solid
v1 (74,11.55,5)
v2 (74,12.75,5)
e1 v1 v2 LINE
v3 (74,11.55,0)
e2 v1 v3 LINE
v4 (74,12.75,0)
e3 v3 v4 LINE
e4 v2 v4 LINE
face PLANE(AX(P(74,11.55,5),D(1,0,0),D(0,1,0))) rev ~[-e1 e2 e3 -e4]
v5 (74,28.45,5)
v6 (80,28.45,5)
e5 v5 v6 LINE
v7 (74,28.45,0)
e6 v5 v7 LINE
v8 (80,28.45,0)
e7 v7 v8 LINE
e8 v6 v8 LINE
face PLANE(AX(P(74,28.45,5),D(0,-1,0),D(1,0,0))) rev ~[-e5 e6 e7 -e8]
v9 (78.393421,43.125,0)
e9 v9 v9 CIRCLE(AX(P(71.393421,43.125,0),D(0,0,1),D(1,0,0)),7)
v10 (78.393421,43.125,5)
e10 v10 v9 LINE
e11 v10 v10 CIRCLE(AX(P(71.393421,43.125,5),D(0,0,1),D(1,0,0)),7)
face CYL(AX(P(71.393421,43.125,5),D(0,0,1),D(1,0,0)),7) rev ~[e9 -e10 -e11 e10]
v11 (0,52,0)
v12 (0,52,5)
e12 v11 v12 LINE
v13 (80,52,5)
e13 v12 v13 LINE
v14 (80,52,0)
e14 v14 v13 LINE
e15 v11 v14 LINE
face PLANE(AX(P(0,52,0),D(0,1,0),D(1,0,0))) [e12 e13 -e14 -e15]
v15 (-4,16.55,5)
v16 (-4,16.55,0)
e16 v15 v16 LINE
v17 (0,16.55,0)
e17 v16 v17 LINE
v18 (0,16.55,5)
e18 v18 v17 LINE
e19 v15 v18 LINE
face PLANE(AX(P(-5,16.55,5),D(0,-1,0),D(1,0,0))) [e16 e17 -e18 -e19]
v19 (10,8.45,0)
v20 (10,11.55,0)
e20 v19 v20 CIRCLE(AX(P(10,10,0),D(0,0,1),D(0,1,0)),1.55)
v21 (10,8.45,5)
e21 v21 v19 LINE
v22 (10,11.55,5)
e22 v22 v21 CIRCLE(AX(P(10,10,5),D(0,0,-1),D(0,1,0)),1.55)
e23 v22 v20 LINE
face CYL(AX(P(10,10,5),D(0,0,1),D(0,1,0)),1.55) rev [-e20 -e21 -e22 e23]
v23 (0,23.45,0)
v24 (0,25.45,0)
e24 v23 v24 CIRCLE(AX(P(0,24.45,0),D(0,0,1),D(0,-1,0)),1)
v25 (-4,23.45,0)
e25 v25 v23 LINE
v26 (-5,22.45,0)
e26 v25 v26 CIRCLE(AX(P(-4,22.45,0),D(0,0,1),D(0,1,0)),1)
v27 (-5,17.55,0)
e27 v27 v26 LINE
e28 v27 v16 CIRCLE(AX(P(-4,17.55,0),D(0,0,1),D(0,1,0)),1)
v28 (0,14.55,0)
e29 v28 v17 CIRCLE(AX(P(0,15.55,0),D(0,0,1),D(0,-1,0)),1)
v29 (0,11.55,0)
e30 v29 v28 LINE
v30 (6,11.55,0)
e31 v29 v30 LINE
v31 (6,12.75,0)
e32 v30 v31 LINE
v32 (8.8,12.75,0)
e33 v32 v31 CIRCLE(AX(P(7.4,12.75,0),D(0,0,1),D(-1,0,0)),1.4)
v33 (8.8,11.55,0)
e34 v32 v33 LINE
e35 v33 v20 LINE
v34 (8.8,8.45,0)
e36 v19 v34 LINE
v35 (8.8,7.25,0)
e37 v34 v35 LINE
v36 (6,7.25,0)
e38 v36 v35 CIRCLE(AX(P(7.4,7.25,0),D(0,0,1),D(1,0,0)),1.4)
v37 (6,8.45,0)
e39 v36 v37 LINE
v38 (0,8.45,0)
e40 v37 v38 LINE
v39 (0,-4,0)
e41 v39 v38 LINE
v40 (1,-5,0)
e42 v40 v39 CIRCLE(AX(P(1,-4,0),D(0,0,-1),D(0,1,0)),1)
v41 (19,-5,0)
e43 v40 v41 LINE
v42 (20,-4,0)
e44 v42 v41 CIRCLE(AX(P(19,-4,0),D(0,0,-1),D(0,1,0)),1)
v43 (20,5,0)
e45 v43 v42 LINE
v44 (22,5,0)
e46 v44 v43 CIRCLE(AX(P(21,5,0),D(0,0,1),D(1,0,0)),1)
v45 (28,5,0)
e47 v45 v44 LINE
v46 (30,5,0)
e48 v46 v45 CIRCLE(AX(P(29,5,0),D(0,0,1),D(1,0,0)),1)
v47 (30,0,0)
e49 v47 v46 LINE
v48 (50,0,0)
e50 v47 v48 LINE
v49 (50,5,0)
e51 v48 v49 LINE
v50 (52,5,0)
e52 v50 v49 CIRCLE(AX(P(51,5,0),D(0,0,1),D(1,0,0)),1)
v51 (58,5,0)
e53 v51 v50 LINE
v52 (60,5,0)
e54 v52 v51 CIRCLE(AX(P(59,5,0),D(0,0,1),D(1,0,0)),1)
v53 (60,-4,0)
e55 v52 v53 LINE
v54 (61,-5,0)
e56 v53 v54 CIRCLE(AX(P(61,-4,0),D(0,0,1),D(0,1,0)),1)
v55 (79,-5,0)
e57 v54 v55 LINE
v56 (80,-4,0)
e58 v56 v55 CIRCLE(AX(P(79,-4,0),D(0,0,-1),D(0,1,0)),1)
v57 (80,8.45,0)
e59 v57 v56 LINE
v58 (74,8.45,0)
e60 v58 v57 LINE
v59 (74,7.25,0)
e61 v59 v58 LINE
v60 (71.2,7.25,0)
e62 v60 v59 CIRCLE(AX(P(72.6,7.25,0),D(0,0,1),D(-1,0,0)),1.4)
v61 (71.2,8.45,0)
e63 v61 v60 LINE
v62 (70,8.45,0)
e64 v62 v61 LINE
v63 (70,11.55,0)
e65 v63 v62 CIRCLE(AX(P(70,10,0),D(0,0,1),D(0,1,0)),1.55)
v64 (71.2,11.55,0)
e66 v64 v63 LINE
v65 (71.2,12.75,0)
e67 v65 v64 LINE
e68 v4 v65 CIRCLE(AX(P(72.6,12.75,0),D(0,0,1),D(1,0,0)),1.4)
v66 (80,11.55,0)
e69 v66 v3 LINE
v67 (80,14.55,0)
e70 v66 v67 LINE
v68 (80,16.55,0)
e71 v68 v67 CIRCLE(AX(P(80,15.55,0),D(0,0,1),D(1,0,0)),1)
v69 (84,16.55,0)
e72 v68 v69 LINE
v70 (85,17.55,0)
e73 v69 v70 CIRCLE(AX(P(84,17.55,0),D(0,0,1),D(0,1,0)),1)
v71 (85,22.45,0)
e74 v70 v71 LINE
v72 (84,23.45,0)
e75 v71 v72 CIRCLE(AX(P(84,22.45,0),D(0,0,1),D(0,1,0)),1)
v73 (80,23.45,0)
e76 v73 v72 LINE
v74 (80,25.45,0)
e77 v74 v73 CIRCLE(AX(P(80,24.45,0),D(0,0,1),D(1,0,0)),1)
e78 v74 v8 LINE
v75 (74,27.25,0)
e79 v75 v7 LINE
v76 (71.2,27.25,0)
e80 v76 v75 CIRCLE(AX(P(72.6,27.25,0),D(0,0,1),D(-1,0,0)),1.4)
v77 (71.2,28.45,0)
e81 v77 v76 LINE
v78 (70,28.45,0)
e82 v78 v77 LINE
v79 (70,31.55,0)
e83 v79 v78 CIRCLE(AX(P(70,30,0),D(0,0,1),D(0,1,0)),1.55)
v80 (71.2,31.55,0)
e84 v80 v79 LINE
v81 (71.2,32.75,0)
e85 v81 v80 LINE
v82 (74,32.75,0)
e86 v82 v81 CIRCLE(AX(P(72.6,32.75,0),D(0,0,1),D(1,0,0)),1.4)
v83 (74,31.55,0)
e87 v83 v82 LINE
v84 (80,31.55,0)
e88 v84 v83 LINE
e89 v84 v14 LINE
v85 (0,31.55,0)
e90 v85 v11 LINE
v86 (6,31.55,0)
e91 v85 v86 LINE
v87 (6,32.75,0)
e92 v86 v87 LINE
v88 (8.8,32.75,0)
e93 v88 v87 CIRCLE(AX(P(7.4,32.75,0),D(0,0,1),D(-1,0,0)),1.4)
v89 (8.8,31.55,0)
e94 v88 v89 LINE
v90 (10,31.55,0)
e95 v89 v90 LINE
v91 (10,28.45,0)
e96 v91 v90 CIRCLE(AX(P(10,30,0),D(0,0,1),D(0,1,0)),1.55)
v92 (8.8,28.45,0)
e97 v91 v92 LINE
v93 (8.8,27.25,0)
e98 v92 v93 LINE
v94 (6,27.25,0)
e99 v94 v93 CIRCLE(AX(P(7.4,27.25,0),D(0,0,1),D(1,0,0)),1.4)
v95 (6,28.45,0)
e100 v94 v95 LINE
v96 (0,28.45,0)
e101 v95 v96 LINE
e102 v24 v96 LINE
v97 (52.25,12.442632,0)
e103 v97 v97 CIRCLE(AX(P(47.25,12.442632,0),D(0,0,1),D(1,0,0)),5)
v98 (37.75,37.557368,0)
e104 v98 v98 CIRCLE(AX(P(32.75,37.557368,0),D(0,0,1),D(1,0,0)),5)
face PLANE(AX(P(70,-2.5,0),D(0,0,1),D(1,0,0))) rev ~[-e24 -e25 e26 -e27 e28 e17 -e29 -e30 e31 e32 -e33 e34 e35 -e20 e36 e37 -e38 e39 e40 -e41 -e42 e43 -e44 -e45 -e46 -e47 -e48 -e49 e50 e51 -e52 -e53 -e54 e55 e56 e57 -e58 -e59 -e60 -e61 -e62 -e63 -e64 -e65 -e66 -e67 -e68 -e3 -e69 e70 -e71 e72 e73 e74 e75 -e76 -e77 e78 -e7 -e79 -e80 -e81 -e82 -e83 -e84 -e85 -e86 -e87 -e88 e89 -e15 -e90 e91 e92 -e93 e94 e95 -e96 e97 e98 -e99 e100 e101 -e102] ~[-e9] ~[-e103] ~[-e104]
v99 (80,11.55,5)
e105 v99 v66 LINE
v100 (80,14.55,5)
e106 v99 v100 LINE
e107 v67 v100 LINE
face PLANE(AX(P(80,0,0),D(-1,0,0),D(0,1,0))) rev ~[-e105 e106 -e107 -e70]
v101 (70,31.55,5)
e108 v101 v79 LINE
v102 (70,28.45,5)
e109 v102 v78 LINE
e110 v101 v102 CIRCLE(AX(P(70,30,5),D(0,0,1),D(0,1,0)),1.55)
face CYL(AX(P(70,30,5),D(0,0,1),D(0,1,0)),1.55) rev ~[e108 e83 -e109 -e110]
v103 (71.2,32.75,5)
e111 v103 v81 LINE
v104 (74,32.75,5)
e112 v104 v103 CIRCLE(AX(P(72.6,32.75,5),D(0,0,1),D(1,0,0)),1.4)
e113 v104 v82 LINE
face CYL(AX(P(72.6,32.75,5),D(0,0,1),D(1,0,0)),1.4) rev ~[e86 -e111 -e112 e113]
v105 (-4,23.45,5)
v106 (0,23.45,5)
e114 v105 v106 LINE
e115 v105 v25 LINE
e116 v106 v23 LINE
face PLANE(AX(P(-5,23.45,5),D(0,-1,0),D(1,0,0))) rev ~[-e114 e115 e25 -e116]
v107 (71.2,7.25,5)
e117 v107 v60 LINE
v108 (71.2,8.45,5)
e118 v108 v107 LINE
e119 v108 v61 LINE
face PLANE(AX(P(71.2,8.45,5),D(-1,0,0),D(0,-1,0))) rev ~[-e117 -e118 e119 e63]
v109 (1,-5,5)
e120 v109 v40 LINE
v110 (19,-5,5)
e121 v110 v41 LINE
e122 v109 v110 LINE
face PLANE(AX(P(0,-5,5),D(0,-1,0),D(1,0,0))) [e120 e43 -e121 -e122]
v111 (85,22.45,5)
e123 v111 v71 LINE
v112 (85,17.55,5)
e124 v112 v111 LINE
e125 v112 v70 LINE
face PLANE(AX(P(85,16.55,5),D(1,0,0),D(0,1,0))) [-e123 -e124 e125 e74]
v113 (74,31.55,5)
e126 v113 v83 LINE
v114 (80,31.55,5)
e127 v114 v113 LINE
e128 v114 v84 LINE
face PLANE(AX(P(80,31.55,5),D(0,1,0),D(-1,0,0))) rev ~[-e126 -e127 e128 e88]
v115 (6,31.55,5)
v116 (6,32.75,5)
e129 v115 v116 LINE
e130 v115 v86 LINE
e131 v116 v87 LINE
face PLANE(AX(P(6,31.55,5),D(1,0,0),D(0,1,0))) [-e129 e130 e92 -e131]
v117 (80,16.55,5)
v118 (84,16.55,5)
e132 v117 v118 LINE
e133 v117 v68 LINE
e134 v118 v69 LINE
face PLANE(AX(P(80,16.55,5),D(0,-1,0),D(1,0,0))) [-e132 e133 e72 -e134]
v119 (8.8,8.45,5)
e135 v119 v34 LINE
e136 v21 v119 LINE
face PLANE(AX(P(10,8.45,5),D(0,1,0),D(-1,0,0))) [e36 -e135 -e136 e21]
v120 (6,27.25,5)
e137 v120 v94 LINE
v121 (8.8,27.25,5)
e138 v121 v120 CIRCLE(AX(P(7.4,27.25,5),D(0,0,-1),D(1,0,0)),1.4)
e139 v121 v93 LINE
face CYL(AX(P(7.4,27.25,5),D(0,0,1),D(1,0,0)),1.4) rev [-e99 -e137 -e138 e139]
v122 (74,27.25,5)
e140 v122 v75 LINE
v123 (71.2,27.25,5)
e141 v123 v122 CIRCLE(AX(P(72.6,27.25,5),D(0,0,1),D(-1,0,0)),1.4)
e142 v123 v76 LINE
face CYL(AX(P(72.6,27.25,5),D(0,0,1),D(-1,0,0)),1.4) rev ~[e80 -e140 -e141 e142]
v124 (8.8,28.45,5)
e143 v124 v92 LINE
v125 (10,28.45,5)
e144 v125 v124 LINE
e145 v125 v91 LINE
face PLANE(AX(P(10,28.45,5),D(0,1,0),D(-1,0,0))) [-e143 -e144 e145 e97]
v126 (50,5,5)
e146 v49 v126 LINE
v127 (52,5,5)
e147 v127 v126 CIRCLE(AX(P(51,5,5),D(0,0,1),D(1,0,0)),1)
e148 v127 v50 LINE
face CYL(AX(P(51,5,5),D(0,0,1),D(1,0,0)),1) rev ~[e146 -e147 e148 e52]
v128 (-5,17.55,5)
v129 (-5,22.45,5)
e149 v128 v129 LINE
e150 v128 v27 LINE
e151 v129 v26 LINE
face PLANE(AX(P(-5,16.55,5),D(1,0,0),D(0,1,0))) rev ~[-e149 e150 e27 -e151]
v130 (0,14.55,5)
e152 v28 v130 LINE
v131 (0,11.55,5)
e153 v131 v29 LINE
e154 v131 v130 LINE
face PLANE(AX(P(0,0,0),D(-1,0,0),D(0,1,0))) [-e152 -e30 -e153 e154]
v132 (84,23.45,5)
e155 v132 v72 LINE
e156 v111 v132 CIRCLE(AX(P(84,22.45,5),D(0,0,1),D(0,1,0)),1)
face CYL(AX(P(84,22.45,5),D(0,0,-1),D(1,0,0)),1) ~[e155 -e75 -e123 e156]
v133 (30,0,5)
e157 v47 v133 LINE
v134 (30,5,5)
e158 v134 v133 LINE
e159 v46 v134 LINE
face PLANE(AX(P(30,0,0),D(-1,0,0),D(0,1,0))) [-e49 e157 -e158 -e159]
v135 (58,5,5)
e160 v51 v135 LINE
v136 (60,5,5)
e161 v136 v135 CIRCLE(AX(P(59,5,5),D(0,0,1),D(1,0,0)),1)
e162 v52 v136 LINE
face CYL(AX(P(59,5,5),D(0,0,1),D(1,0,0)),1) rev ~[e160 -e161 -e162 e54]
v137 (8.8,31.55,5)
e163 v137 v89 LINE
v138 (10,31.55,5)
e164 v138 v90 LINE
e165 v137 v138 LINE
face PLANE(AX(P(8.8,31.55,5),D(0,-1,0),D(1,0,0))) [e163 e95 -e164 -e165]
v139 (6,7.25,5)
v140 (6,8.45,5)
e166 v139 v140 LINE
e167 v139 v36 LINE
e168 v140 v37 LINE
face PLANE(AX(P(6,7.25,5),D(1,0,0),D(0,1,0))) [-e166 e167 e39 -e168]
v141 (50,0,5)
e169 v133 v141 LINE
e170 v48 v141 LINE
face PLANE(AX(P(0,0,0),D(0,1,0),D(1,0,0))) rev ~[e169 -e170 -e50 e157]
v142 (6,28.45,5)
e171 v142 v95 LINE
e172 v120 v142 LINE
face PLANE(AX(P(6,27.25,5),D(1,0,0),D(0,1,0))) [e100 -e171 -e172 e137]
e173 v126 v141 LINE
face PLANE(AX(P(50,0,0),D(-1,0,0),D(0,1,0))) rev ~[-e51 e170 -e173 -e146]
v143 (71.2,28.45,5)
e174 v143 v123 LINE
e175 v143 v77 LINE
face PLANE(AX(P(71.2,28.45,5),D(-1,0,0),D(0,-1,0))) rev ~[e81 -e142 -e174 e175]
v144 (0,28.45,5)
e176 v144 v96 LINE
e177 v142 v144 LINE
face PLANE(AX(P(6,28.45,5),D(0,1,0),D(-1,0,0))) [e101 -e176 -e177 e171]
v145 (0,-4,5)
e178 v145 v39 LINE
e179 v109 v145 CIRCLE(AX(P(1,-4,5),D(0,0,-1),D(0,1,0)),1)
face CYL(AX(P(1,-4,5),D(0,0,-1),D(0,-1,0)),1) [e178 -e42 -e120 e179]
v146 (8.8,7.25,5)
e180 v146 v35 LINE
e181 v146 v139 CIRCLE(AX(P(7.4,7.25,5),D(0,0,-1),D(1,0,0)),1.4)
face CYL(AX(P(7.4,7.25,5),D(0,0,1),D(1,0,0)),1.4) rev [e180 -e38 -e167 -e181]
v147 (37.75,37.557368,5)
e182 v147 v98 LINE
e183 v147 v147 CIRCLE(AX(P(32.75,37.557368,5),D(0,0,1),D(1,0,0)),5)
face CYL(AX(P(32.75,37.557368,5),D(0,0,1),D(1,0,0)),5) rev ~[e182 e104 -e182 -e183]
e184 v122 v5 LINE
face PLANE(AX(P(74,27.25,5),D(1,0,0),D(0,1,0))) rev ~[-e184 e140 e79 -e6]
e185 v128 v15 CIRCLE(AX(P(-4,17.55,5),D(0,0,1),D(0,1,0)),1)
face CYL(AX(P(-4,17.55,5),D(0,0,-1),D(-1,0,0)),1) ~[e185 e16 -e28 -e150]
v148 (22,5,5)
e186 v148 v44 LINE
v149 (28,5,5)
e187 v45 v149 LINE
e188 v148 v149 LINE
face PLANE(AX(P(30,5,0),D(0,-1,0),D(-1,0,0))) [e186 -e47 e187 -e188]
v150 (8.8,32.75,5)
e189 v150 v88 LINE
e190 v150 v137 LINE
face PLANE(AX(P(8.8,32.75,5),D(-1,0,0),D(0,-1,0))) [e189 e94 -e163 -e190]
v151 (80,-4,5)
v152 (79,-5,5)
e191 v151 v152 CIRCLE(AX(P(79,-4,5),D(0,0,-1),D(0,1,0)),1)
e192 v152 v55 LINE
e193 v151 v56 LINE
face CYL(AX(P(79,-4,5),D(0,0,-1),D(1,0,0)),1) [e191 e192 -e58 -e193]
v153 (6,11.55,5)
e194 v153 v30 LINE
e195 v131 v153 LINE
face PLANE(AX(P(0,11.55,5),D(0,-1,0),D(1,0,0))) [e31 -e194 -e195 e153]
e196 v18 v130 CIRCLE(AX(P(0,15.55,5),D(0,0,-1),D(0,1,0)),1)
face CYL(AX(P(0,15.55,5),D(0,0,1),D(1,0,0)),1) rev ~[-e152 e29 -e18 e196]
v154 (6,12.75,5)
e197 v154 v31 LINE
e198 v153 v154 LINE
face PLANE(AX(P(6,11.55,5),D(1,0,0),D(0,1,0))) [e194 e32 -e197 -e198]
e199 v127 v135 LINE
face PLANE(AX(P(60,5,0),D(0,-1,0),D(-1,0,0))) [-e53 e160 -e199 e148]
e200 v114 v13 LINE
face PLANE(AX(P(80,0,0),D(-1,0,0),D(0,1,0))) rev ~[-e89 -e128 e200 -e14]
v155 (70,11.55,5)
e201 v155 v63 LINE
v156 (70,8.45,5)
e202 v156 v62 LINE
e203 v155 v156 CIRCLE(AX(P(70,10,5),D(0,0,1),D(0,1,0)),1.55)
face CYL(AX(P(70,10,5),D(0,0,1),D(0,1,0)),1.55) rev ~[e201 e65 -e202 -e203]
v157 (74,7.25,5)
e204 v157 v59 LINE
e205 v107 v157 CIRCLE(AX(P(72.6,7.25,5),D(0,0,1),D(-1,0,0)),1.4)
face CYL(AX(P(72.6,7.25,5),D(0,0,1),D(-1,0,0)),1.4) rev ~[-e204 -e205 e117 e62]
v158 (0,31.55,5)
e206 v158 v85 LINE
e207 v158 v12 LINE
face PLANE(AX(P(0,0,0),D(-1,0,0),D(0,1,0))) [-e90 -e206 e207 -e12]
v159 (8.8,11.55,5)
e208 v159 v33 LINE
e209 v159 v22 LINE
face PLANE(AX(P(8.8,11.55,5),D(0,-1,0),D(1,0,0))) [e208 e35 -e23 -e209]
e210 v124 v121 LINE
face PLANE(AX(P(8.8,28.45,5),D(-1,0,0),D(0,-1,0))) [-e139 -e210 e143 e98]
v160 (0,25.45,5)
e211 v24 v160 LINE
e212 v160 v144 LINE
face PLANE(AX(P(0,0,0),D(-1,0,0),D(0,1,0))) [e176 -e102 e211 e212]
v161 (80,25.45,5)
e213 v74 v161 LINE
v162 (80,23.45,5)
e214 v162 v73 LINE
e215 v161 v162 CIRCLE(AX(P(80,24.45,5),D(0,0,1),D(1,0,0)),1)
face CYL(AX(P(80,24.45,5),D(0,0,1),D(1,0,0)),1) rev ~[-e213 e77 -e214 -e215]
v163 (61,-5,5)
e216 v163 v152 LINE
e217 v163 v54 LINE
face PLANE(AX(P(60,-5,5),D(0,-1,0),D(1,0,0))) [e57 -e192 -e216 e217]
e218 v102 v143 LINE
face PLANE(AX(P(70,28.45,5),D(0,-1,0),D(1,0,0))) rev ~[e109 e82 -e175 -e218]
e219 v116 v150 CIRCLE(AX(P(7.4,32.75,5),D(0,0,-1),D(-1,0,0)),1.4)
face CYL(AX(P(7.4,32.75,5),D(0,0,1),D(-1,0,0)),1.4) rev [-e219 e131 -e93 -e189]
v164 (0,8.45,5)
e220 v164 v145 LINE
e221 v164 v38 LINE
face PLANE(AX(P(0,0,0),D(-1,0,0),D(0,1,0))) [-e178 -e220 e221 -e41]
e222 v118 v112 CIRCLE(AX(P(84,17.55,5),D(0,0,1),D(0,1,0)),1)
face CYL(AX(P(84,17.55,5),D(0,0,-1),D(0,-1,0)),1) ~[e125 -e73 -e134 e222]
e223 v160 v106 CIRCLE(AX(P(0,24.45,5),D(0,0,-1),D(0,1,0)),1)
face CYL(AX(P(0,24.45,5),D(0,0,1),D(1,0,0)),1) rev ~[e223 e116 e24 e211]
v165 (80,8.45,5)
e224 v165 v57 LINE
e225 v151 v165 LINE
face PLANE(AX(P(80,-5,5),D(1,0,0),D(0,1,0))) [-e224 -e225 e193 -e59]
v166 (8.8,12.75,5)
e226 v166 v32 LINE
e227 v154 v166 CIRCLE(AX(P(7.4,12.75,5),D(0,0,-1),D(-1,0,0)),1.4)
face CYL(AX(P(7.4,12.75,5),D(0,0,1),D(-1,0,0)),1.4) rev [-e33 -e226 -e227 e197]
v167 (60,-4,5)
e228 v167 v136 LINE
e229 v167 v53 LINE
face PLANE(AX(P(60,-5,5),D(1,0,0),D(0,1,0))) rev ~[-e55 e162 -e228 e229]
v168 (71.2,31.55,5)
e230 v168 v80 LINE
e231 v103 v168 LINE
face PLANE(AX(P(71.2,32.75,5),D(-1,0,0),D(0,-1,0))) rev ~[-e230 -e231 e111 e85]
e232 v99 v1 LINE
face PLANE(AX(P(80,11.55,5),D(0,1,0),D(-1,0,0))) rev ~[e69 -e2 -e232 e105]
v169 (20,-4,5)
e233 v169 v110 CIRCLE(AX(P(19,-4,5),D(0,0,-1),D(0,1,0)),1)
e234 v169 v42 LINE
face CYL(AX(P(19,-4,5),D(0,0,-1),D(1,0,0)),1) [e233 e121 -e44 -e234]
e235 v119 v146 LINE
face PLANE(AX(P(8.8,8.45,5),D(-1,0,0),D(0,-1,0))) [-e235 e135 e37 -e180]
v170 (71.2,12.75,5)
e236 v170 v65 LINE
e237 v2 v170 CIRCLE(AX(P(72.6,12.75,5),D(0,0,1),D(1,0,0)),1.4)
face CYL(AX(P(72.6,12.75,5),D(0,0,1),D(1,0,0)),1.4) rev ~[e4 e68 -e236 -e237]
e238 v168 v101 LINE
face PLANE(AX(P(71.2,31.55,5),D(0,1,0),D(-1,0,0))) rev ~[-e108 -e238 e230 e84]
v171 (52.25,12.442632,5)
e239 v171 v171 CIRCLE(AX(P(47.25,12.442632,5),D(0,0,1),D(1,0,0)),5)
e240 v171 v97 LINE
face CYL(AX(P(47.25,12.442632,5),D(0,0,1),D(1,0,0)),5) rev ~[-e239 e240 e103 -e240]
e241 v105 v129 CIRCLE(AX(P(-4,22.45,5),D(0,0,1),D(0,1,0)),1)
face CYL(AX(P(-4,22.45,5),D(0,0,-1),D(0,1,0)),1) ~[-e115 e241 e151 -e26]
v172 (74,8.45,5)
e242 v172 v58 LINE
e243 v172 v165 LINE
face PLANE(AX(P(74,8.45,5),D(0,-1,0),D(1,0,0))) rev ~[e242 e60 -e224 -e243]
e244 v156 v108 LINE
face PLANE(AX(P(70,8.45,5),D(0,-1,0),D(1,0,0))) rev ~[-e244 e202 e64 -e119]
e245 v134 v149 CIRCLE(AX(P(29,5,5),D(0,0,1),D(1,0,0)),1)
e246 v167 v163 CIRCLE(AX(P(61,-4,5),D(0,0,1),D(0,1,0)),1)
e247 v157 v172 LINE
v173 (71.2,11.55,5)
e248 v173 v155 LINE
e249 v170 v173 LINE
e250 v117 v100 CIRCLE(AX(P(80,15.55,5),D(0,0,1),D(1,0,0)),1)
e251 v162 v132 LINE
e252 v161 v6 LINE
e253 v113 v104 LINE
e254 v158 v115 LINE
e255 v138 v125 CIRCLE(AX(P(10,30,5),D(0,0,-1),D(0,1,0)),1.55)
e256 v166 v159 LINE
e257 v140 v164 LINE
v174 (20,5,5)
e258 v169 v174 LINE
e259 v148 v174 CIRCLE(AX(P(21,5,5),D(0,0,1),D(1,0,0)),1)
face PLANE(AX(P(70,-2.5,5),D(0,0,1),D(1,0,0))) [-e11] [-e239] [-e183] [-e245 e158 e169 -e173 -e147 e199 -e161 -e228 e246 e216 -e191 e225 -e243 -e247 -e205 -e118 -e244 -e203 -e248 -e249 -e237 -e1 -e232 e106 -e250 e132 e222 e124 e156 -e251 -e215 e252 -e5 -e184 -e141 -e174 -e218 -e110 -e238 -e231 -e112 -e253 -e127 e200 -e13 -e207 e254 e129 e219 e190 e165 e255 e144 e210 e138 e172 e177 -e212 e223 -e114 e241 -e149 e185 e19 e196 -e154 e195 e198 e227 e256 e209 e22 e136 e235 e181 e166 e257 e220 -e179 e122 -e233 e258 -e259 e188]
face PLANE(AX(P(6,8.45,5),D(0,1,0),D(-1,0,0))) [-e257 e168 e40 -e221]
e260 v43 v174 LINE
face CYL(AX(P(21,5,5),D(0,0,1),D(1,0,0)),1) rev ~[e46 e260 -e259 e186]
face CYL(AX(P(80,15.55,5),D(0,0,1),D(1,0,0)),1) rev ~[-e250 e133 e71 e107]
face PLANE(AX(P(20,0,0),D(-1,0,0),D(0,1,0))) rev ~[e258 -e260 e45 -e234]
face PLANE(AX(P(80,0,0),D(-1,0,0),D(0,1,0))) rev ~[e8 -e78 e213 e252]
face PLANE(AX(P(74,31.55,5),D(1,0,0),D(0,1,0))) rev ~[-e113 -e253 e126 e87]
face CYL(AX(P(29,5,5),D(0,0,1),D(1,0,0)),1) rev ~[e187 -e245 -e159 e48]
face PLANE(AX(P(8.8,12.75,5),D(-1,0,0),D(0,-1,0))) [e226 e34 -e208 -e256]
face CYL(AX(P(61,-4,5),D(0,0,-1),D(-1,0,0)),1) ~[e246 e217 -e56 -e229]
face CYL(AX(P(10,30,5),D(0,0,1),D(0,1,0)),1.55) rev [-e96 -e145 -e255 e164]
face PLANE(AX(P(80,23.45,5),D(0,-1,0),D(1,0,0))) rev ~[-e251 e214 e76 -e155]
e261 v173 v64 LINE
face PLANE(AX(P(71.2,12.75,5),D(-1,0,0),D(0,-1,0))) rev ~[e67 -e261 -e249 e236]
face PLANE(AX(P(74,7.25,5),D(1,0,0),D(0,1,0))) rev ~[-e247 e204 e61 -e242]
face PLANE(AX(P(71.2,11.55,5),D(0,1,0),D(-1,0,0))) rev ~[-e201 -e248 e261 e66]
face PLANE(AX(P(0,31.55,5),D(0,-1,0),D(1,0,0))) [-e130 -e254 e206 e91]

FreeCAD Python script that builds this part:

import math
import FreeCAD as App
import Part
import Sketcher
from FreeCAD import Vector
Q = App.Units.Quantity


def edges_at(feature, points):
    """Names of the edges that pass closest to the given points."""
    edges = feature.Shape.Edges
    near = lambda p: min(range(len(edges)), key=lambda i: edges[i].distToShape(Part.Vertex(*p))[0])
    return sorted({f"Edge{near(p) + 1}" for p in points})


def add_polygon(sketch, points):
    """Adds a closed chain of lines whose ends are joined by coincident constraints."""
    first, n = sketch.GeometryCount, len(points)
    for a, b in zip(points, points[1:] + points[:1]):
        sketch.addGeometry(Part.LineSegment(App.Vector(*a, 0), App.Vector(*b, 0)), False)
    for i in range(n):
        sketch.addConstraint(Sketcher.Constraint("Coincident", first + i, 2, first + (i + 1) % n, 1))

doc = App.newDocument("Part")
body = doc.addObject("PartDesign::Body", "Body")

sketch1 = body.newObject("Sketcher::SketchObject", "Sketch")
sketch1.AttachmentSupport = (doc.getObject("XY_Plane"), [""])
sketch1.MapMode = "FlatFace"
add_polygon(sketch1, [(0, 52), (0, 0), (80, 0), (80, 52)])
sketch1.addConstraint(Sketcher.Constraint("Vertical", 0))
sketch1.addConstraint(Sketcher.Constraint("Horizontal", 1))
sketch1.addConstraint(Sketcher.Constraint("Vertical", 2))
sketch1.addConstraint(Sketcher.Constraint("Horizontal", 3))
sketch1.addConstraint(Sketcher.Constraint("Coincident", 0, 2, -1, 1))
sketch1.addConstraint(Sketcher.Constraint("DistanceX", 1, 1, 1, 2, Q("80 mm")))
sketch1.addConstraint(Sketcher.Constraint("DistanceY", 0, 2, 0, 1, Q("52 mm")))
pad1 = body.newObject("PartDesign::Pad", "Pad")
pad1.Profile = sketch1
pad1.Length = 5

sketch2 = body.newObject("Sketcher::SketchObject", "Sketch001")
sketch2.AttachmentSupport = (doc.getObject("XY_Plane"), [""])
sketch2.MapMode = "FlatFace"
sketch2.AttachmentOffset = App.Placement(Vector(0, 0, 5), App.Rotation())
sketch2.addGeometry(Part.Circle(Vector(71, 43, 0), Vector(0, 0, 1), 7), False)
sketch2.addConstraint(Sketcher.Constraint("Diameter", 0, Q("14 mm")))
sketch2.addConstraint(Sketcher.Constraint("DistanceY", -1, 1, 0, 3, Q("43.125 mm")))
sketch2.addConstraint(Sketcher.Constraint("DistanceX", -1, 1, 0, 3, Q("71.393421 mm")))
pocket1 = body.newObject("PartDesign::Pocket", "Pocket")
pocket1.Profile = sketch2
pocket1.Length = 5

sketch3 = body.newObject("Sketcher::SketchObject", "Sketch002")
sketch3.AttachmentSupport = (doc.getObject("XY_Plane"), [""])
sketch3.MapMode = "FlatFace"
sketch3.AttachmentOffset = App.Placement(Vector(0, 0, 5), App.Rotation())
sketch3.addGeometry(Part.LineSegment(Vector(6, 31.6, 0), Vector(0, 31.6, 0)), False)
sketch3.addGeometry(Part.LineSegment(Vector(0, 31.6, 0), Vector(0, 28.4, 0)), False)
sketch3.addGeometry(Part.LineSegment(Vector(0, 28.4, 0), Vector(6, 28.4, 0)), False)
sketch3.addGeometry(Part.LineSegment(Vector(6, 28.4, 0), Vector(6, 27.2, 0)), False)
sketch3.addGeometry(Part.ArcOfCircle(Part.Circle(Vector(7.4, 27.2, 0), Vector(0, 0, 1), 1.4), math.radians(180), math.radians(360)), False)
sketch3.addGeometry(Part.LineSegment(Vector(8.8, 27.2, 0), Vector(8.8, 28.4, 0)), False)
sketch3.addGeometry(Part.LineSegment(Vector(8.8, 28.4, 0), Vector(10, 28.4, 0)), False)
sketch3.addGeometry(Part.ArcOfCircle(Part.Circle(Vector(10, 30, 0), Vector(0, 0, 1), 1.6), math.radians(-90), math.radians(90)), False)
sketch3.addGeometry(Part.LineSegment(Vector(10, 31.6, 0), Vector(8.8, 31.6, 0)), False)
sketch3.addGeometry(Part.LineSegment(Vector(8.8, 31.6, 0), Vector(8.8, 32.8, 0)), False)
sketch3.addGeometry(Part.ArcOfCircle(Part.Circle(Vector(7.4, 32.8, 0), Vector(0, 0, 1), 1.4), math.radians(0), math.radians(180)), False)
sketch3.addGeometry(Part.LineSegment(Vector(6, 32.8, 0), Vector(6, 31.6, 0)), False)
sketch3.addGeometry(Part.LineSegment(Vector(6, 11.6, 0), Vector(0, 11.6, 0)), False)
sketch3.addGeometry(Part.LineSegment(Vector(0, 11.6, 0), Vector(0, 8.4, 0)), False)
sketch3.addGeometry(Part.LineSegment(Vector(0, 8.4, 0), Vector(6, 8.4, 0)), False)
sketch3.addGeometry(Part.LineSegment(Vector(6, 8.4, 0), Vector(6, 7.2, 0)), False)
sketch3.addGeometry(Part.ArcOfCircle(Part.Circle(Vector(7.4, 7.2, 0), Vector(0, 0, 1), 1.4), math.radians(180), math.radians(360)), False)
sketch3.addGeometry(Part.LineSegment(Vector(8.8, 7.2, 0), Vector(8.8, 8.4, 0)), False)
sketch3.addGeometry(Part.LineSegment(Vector(8.8, 8.4, 0), Vector(10, 8.4, 0)), False)
sketch3.addGeometry(Part.ArcOfCircle(Part.Circle(Vector(10, 10, 0), Vector(0, 0, 1), 1.6), math.radians(-90), math.radians(90)), False)
sketch3.addGeometry(Part.LineSegment(Vector(10, 11.6, 0), Vector(8.8, 11.6, 0)), False)
sketch3.addGeometry(Part.LineSegment(Vector(8.8, 11.6, 0), Vector(8.8, 12.8, 0)), False)
sketch3.addGeometry(Part.ArcOfCircle(Part.Circle(Vector(7.4, 12.8, 0), Vector(0, 0, 1), 1.4), math.radians(0), math.radians(180)), False)
sketch3.addGeometry(Part.LineSegment(Vector(6, 12.8, 0), Vector(6, 11.6, 0)), False)
sketch3.addGeometry(Part.LineSegment(Vector(74, 7.2, 0), Vector(74, 8.4, 0)), False)
sketch3.addGeometry(Part.LineSegment(Vector(74, 8.4, 0), Vector(80, 8.4, 0)), False)
sketch3.addGeometry(Part.LineSegment(Vector(80, 8.4, 0), Vector(80, 11.6, 0)), False)
sketch3.addGeometry(Part.LineSegment(Vector(80, 11.6, 0), Vector(74, 11.6, 0)), False)
sketch3.addGeometry(Part.LineSegment(Vector(74, 11.6, 0), Vector(74, 12.8, 0)), False)
sketch3.addGeometry(Part.ArcOfCircle(Part.Circle(Vector(72.6, 12.8, 0), Vector(0, 0, 1), 1.4), math.radians(0), math.radians(180)), False)
sketch3.addGeometry(Part.LineSegment(Vector(71.2, 12.8, 0), Vector(71.2, 11.6, 0)), False)
sketch3.addGeometry(Part.LineSegment(Vector(71.2, 11.6, 0), Vector(70, 11.6, 0)), False)
sketch3.addGeometry(Part.ArcOfCircle(Part.Circle(Vector(70, 10, 0), Vector(0, 0, 1), 1.6), math.radians(90), math.radians(270)), False)
sketch3.addGeometry(Part.LineSegment(Vector(70, 8.4, 0), Vector(71.2, 8.4, 0)), False)
sketch3.addGeometry(Part.LineSegment(Vector(71.2, 8.4, 0), Vector(71.2, 7.2, 0)), False)
sketch3.addGeometry(Part.ArcOfCircle(Part.Circle(Vector(72.6, 7.2, 0), Vector(0, 0, 1), 1.4), math.radians(180), math.radians(360)), False)
sketch3.addGeometry(Part.LineSegment(Vector(74, 27.2, 0), Vector(74, 28.4, 0)), False)
sketch3.addGeometry(Part.LineSegment(Vector(74, 28.4, 0), Vector(80, 28.4, 0)), False)
sketch3.addGeometry(Part.LineSegment(Vector(80, 28.4, 0), Vector(80, 31.6, 0)), False)
sketch3.addGeometry(Part.LineSegment(Vector(80, 31.6, 0), Vector(74, 31.6, 0)), False)
sketch3.addGeometry(Part.LineSegment(Vector(74, 31.6, 0), Vector(74, 32.8, 0)), False)
sketch3.addGeometry(Part.ArcOfCircle(Part.Circle(Vector(72.6, 32.8, 0), Vector(0, 0, 1), 1.4), math.radians(0), math.radians(180)), False)
sketch3.addGeometry(Part.LineSegment(Vector(71.2, 32.8, 0), Vector(71.2, 31.6, 0)), False)
sketch3.addGeometry(Part.LineSegment(Vector(71.2, 31.6, 0), Vector(70, 31.6, 0)), False)
sketch3.addGeometry(Part.ArcOfCircle(Part.Circle(Vector(70, 30, 0), Vector(0, 0, 1), 1.6), math.radians(90), math.radians(270)), False)
sketch3.addGeometry(Part.LineSegment(Vector(70, 28.4, 0), Vector(71.2, 28.4, 0)), False)
sketch3.addGeometry(Part.LineSegment(Vector(71.2, 28.4, 0), Vector(71.2, 27.2, 0)), False)
sketch3.addGeometry(Part.ArcOfCircle(Part.Circle(Vector(72.6, 27.2, 0), Vector(0, 0, 1), 1.4), math.radians(180), math.radians(360)), False)
sketch3.addConstraint(Sketcher.Constraint("Coincident", 0, 2, 1, 1))
sketch3.addConstraint(Sketcher.Constraint("Coincident", 1, 2, 2, 1))
sketch3.addConstraint(Sketcher.Constraint("Coincident", 2, 2, 3, 1))
sketch3.addConstraint(Sketcher.Constraint("Tangent", 3, 2, 4, 1))
sketch3.addConstraint(Sketcher.Constraint("Tangent", 4, 2, 5, 1))
sketch3.addConstraint(Sketcher.Constraint("Coincident", 5, 2, 6, 1))
sketch3.addConstraint(Sketcher.Constraint("Tangent", 6, 2, 7, 1))
sketch3.addConstraint(Sketcher.Constraint("Tangent", 7, 2, 8, 1))
sketch3.addConstraint(Sketcher.Constraint("Coincident", 8, 2, 9, 1))
sketch3.addConstraint(Sketcher.Constraint("Tangent", 9, 2, 10, 1))
sketch3.addConstraint(Sketcher.Constraint("Tangent", 10, 2, 11, 1))
sketch3.addConstraint(Sketcher.Constraint("Coincident", 11, 2, 0, 1))
sketch3.addConstraint(Sketcher.Constraint("Coincident", 12, 2, 13, 1))
sketch3.addConstraint(Sketcher.Constraint("Coincident", 13, 2, 14, 1))
sketch3.addConstraint(Sketcher.Constraint("Coincident", 14, 2, 15, 1))
sketch3.addConstraint(Sketcher.Constraint("Tangent", 15, 2, 16, 1))
sketch3.addConstraint(Sketcher.Constraint("Tangent", 16, 2, 17, 1))
sketch3.addConstraint(Sketcher.Constraint("Coincident", 17, 2, 18, 1))
sketch3.addConstraint(Sketcher.Constraint("Tangent", 18, 2, 19, 1))
sketch3.addConstraint(Sketcher.Constraint("Tangent", 19, 2, 20, 1))
sketch3.addConstraint(Sketcher.Constraint("Coincident", 20, 2, 21, 1))
sketch3.addConstraint(Sketcher.Constraint("Tangent", 21, 2, 22, 1))
sketch3.addConstraint(Sketcher.Constraint("Tangent", 22, 2, 23, 1))
sketch3.addConstraint(Sketcher.Constraint("Coincident", 23, 2, 12, 1))
sketch3.addConstraint(Sketcher.Constraint("Coincident", 24, 2, 25, 1))
sketch3.addConstraint(Sketcher.Constraint("Coincident", 25, 2, 26, 1))
sketch3.addConstraint(Sketcher.Constraint("Coincident", 26, 2, 27, 1))
sketch3.addConstraint(Sketcher.Constraint("Coincident", 27, 2, 28, 1))
sketch3.addConstraint(Sketcher.Constraint("Tangent", 28, 2, 29, 1))
sketch3.addConstraint(Sketcher.Constraint("Tangent", 29, 2, 30, 1))
sketch3.addConstraint(Sketcher.Constraint("Coincident", 30, 2, 31, 1))
sketch3.addConstraint(Sketcher.Constraint("Tangent", 31, 2, 32, 1))
sketch3.addConstraint(Sketcher.Constraint("Tangent", 32, 2, 33, 1))
sketch3.addConstraint(Sketcher.Constraint("Coincident", 33, 2, 34, 1))
sketch3.addConstraint(Sketcher.Constraint("Tangent", 34, 2, 35, 1))
sketch3.addConstraint(Sketcher.Constraint("Tangent", 35, 2, 24, 1))
sketch3.addConstraint(Sketcher.Constraint("Coincident", 36, 2, 37, 1))
sketch3.addConstraint(Sketcher.Constraint("Coincident", 37, 2, 38, 1))
sketch3.addConstraint(Sketcher.Constraint("Coincident", 38, 2, 39, 1))
sketch3.addConstraint(Sketcher.Constraint("Coincident", 39, 2, 40, 1))
sketch3.addConstraint(Sketcher.Constraint("Tangent", 40, 2, 41, 1))
sketch3.addConstraint(Sketcher.Constraint("Tangent", 41, 2, 42, 1))
sketch3.addConstraint(Sketcher.Constraint("Coincident", 42, 2, 43, 1))
sketch3.addConstraint(Sketcher.Constraint("Tangent", 43, 2, 44, 1))
sketch3.addConstraint(Sketcher.Constraint("Tangent", 44, 2, 45, 1))
sketch3.addConstraint(Sketcher.Constraint("Coincident", 45, 2, 46, 1))
sketch3.addConstraint(Sketcher.Constraint("Tangent", 46, 2, 47, 1))
sketch3.addConstraint(Sketcher.Constraint("Tangent", 47, 2, 36, 1))
sketch3.addConstraint(Sketcher.Constraint("Horizontal", 0))
sketch3.addConstraint(Sketcher.Constraint("Vertical", 1))
sketch3.addConstraint(Sketcher.Constraint("Horizontal", 2))
sketch3.addConstraint(Sketcher.Constraint("Vertical", 3))
sketch3.addConstraint(Sketcher.Constraint("Vertical", 5))
sketch3.addConstraint(Sketcher.Constraint("Horizontal", 6))
sketch3.addConstraint(Sketcher.Constraint("Horizontal", 8))
sketch3.addConstraint(Sketcher.Constraint("Vertical", 9))
sketch3.addConstraint(Sketcher.Constraint("Vertical", 11))
sketch3.addConstraint(Sketcher.Constraint("Horizontal", 12))
sketch3.addConstraint(Sketcher.Constraint("Vertical", 13))
sketch3.addConstraint(Sketcher.Constraint("Horizontal", 14))
sketch3.addConstraint(Sketcher.Constraint("Vertical", 15))
sketch3.addConstraint(Sketcher.Constraint("Vertical", 17))
sketch3.addConstraint(Sketcher.Constraint("Horizontal", 18))
sketch3.addConstraint(Sketcher.Constraint("Horizontal", 20))
sketch3.addConstraint(Sketcher.Constraint("Vertical", 21))
sketch3.addConstraint(Sketcher.Constraint("Vertical", 23))
sketch3.addConstraint(Sketcher.Constraint("Vertical", 24))
sketch3.addConstraint(Sketcher.Constraint("Horizontal", 25))
sketch3.addConstraint(Sketcher.Constraint("Vertical", 26))
sketch3.addConstraint(Sketcher.Constraint("Horizontal", 27))
sketch3.addConstraint(Sketcher.Constraint("Vertical", 28))
sketch3.addConstraint(Sketcher.Constraint("Vertical", 30))
sketch3.addConstraint(Sketcher.Constraint("Horizontal", 31))
sketch3.addConstraint(Sketcher.Constraint("Horizontal", 33))
sketch3.addConstraint(Sketcher.Constraint("Vertical", 34))
sketch3.addConstraint(Sketcher.Constraint("Vertical", 36))
sketch3.addConstraint(Sketcher.Constraint("Horizontal", 37))
sketch3.addConstraint(Sketcher.Constraint("Vertical", 38))
sketch3.addConstraint(Sketcher.Constraint("Horizontal", 39))
sketch3.addConstraint(Sketcher.Constraint("Vertical", 40))
sketch3.addConstraint(Sketcher.Constraint("Vertical", 42))
sketch3.addConstraint(Sketcher.Constraint("Horizontal", 43))
sketch3.addConstraint(Sketcher.Constraint("Horizontal", 45))
sketch3.addConstraint(Sketcher.Constraint("Vertical", 46))
sketch3.addConstraint(Sketcher.Constraint("Equal", 4, 10))
sketch3.addConstraint(Sketcher.Constraint("Equal", 10, 16))
sketch3.addConstraint(Sketcher.Constraint("Equal", 7, 19))
sketch3.addConstraint(Sketcher.Constraint("Equal", 16, 22))
sketch3.addConstraint(Sketcher.Constraint("Equal", 22, 29))
sketch3.addConstraint(Sketcher.Constraint("Equal", 19, 32))
sketch3.addConstraint(Sketcher.Constraint("Equal", 29, 35))
sketch3.addConstraint(Sketcher.Constraint("Equal", 35, 41))
sketch3.addConstraint(Sketcher.Constraint("Equal", 32, 44))
sketch3.addConstraint(Sketcher.Constraint("Equal", 41, 47))
sketch3.addConstraint(Sketcher.Constraint("PointOnObject", 0, 2, -2))
sketch3.addConstraint(Sketcher.Constraint("PointOnObject", 12, 2, -2))
sketch3.addConstraint(Sketcher.Constraint("Horizontal", 22, 3, 29, 3))
sketch3.addConstraint(Sketcher.Constraint("Horizontal", 19, 3, 32, 3))
sketch3.addConstraint(Sketcher.Constraint("Horizontal", 16, 3, 35, 3))
sketch3.addConstraint(Sketcher.Constraint("Horizontal", 10, 3, 41, 3))
sketch3.addConstraint(Sketcher.Constraint("Horizontal", 7, 3, 44, 3))
sketch3.addConstraint(Sketcher.Constraint("Horizontal", 4, 3, 47, 3))
sketch3.addConstraint(Sketcher.Constraint("Horizontal", 2, 2, 5, 2))
sketch3.addConstraint(Sketcher.Constraint("Horizontal", 0, 2, 7, 2))
sketch3.addConstraint(Sketcher.Constraint("Horizontal", 14, 2, 17, 2))
sketch3.addConstraint(Sketcher.Constraint("Horizontal", 12, 2, 19, 2))
sketch3.addConstraint(Sketcher.Constraint("Horizontal", 18, 2, 24, 2))
sketch3.addConstraint(Sketcher.Constraint("Horizontal", 23, 2, 26, 2))
sketch3.addConstraint(Sketcher.Constraint("Horizontal", 6, 2, 36, 2))
sketch3.addConstraint(Sketcher.Constraint("Horizontal", 11, 2, 38, 2))
sketch3.addConstraint(Sketcher.Constraint("Vertical", 4, 3, 10, 3))
sketch3.addConstraint(Sketcher.Constraint("Vertical", 10, 3, 16, 3))
sketch3.addConstraint(Sketcher.Constraint("Vertical", 7, 3, 19, 3))
sketch3.addConstraint(Sketcher.Constraint("Vertical", 16, 3, 22, 3))
sketch3.addConstraint(Sketcher.Constraint("Vertical", 29, 3, 35, 3))
sketch3.addConstraint(Sketcher.Constraint("Vertical", 35, 3, 41, 3))
sketch3.addConstraint(Sketcher.Constraint("Vertical", 32, 3, 44, 3))
sketch3.addConstraint(Sketcher.Constraint("Vertical", 41, 3, 47, 3))
sketch3.addConstraint(Sketcher.Constraint("Vertical", 26, 2, 37, 2))
sketch3.addConstraint(Sketcher.Constraint("Equal", 14, 25))
sketch3.addConstraint(Sketcher.Constraint("Equal", 20, 31))
sketch3.addConstraint(Sketcher.Constraint("Equal", 45, 3))
sketch3.addConstraint(Sketcher.Constraint("Equal", 5, 9))
sketch3.addConstraint(Sketcher.Constraint("Equal", 11, 15))
sketch3.addConstraint(Sketcher.Constraint("Equal", 17, 21))
sketch3.addConstraint(Sketcher.Constraint("Radius", 4, Q("1.4 mm")))
sketch3.addConstraint(Sketcher.Constraint("DistanceX", 0, 2, 0, 1, Q("6 mm")))
sketch3.addConstraint(Sketcher.Constraint("Radius", 7, Q("1.55 mm")))
sketch3.addConstraint(Sketcher.Constraint("DistanceX", 6, 1, 6, 2, Q("1.2 mm")))
sketch3.addConstraint(Sketcher.Constraint("DistanceY", -1, 1, 7, 3, Q("30 mm")))
sketch3.addConstraint(Sketcher.Constraint("DistanceY", -1, 1, 19, 3, Q("10 mm")))
sketch3.addConstraint(Sketcher.Constraint("DistanceX", -1, 1, 32, 3, Q("70 mm")))
pocket2 = body.newObject("PartDesign::Pocket", "Pocket001")
pocket2.Profile = sketch3
pocket2.Length = 10

sketch4 = body.newObject("Sketcher::SketchObject", "Sketch003")
sketch4.AttachmentSupport = (doc.getObject("XY_Plane"), [""])
sketch4.MapMode = "FlatFace"
sketch4.AttachmentOffset = App.Placement(Vector(0, 0, 5), App.Rotation())
sketch4.addGeometry(Part.Circle(Vector(33, 38, 0), Vector(0, 0, 1), 5), False)
sketch4.addGeometry(Part.Circle(Vector(47, 12, 0), Vector(0, 0, 1), 5), False)
sketch4.addConstraint(Sketcher.Constraint("Equal", 0, 1))
sketch4.addConstraint(Sketcher.Constraint("Diameter", 0, Q("10 mm")))
sketch4.addConstraint(Sketcher.Constraint("DistanceX", 0, 3, 1, 3, Q("14.5 mm")))
sketch4.addConstraint(Sketcher.Constraint("DistanceX", -1, 1, 0, 3, Q("32.75 mm")))
sketch4.addConstraint(Sketcher.Constraint("DistanceY", -1, 1, 0, 3, Q("37.557368 mm")))
sketch4.addConstraint(Sketcher.Constraint("DistanceY", -1, 1, 1, 3, Q("12.442632 mm")))
pocket3 = body.newObject("PartDesign::Pocket", "Pocket002")
pocket3.Profile = sketch4
pocket3.Length = 10

sketch5 = body.newObject("Sketcher::SketchObject", "Sketch004")
sketch5.AttachmentSupport = (doc.getObject("XY_Plane"), [""])
sketch5.MapMode = "FlatFace"
add_polygon(sketch5, [(30, 5), (30, 0), (20, 0), (20, 5)])
add_polygon(sketch5, [(60, 5), (60, 0), (50, 0), (50, 5)])
sketch5.addConstraint(Sketcher.Constraint("Vertical", 0))
sketch5.addConstraint(Sketcher.Constraint("Horizontal", 1))
sketch5.addConstraint(Sketcher.Constraint("Vertical", 2))
sketch5.addConstraint(Sketcher.Constraint("Horizontal", 3))
sketch5.addConstraint(Sketcher.Constraint("Vertical", 4))
sketch5.addConstraint(Sketcher.Constraint("Horizontal", 5))
sketch5.addConstraint(Sketcher.Constraint("Vertical", 6))
sketch5.addConstraint(Sketcher.Constraint("Horizontal", 7))
sketch5.addConstraint(Sketcher.Constraint("PointOnObject", 0, 2, -1))
sketch5.addConstraint(Sketcher.Constraint("PointOnObject", 4, 2, -1))
sketch5.addConstraint(Sketcher.Constraint("Horizontal", 3, 2, 6, 2))
sketch5.addConstraint(Sketcher.Constraint("Equal", 3, 5))
sketch5.addConstraint(Sketcher.Constraint("DistanceX", 1, 2, 1, 1, Q("10 mm")))
sketch5.addConstraint(Sketcher.Constraint("DistanceY", 0, 2, 0, 1, Q("5 mm")))
sketch5.addConstraint(Sketcher.Constraint("DistanceX", -1, 1, 0, 2, Q("30 mm")))
sketch5.addConstraint(Sketcher.Constraint("DistanceX", -1, 1, 4, 2, Q("60 mm")))
pocket4 = body.newObject("PartDesign::Pocket", "Pocket003")
pocket4.Profile = sketch5
pocket4.Length = 10
pocket4.Reversed = True

sketch6 = body.newObject("Sketcher::SketchObject", "Sketch005")
sketch6.AttachmentSupport = (doc.getObject("XY_Plane"), [""])
sketch6.MapMode = "FlatFace"
sketch6.AttachmentOffset = App.Placement(Vector(0, 0, 5), App.Rotation())
sketch6.addGeometry(Part.Circle(Vector(59, 5, 0), Vector(0, 0, 1), 1), False)
sketch6.addGeometry(Part.Circle(Vector(51, 5, 0), Vector(0, 0, 1), 1), False)
sketch6.addGeometry(Part.Circle(Vector(29, 5, 0), Vector(0, 0, 1), 1), False)
sketch6.addGeometry(Part.Circle(Vector(21, 5, 0), Vector(0, 0, 1), 1), False)
sketch6.addConstraint(Sketcher.Constraint("Equal", 0, 1))
sketch6.addConstraint(Sketcher.Constraint("Equal", 1, 2))
sketch6.addConstraint(Sketcher.Constraint("Equal", 2, 3))
sketch6.addConstraint(Sketcher.Constraint("Horizontal", 0, 3, 1, 3))
sketch6.addConstraint(Sketcher.Constraint("Horizontal", 1, 3, 2, 3))
sketch6.addConstraint(Sketcher.Constraint("Horizontal", 2, 3, 3, 3))
sketch6.addConstraint(Sketcher.Constraint("Diameter", 0, Q("2 mm")))
sketch6.addConstraint(Sketcher.Constraint("DistanceX", -1, 1, 0, 3, Q("59 mm")))
sketch6.addConstraint(Sketcher.Constraint("DistanceY", -1, 1, 0, 3, Q("5 mm")))
sketch6.addConstraint(Sketcher.Constraint("DistanceX", -1, 1, 1, 3, Q("51 mm")))
sketch6.addConstraint(Sketcher.Constraint("DistanceX", -1, 1, 2, 3, Q("29 mm")))
sketch6.addConstraint(Sketcher.Constraint("DistanceX", -1, 1, 3, 3, Q("21 mm")))
pocket5 = body.newObject("PartDesign::Pocket", "Pocket004")
pocket5.Profile = sketch6
pocket5.Length = 10

sketch7 = body.newObject("Sketcher::SketchObject", "Sketch006")
sketch7.AttachmentSupport = (doc.getObject("XY_Plane"), [""])
sketch7.MapMode = "FlatFace"
sketch7.AttachmentOffset = App.Placement(Vector(0, 0, 5), App.Rotation())
add_polygon(sketch7, [(80, 23), (80, 17), (85, 17), (85, 23)])
add_polygon(sketch7, [(-5, 23), (-5, 17), (0, 17), (0, 23)])
sketch7.addConstraint(Sketcher.Constraint("Vertical", 0))
sketch7.addConstraint(Sketcher.Constraint("Horizontal", 1))
sketch7.addConstraint(Sketcher.Constraint("Vertical", 2))
sketch7.addConstraint(Sketcher.Constraint("Horizontal", 3))
sketch7.addConstraint(Sketcher.Constraint("Vertical", 4))
sketch7.addConstraint(Sketcher.Constraint("Horizontal", 5))
sketch7.addConstraint(Sketcher.Constraint("Vertical", 6))
sketch7.addConstraint(Sketcher.Constraint("Horizontal", 7))
sketch7.addConstraint(Sketcher.Constraint("PointOnObject", 5, 2, -2))
sketch7.addConstraint(Sketcher.Constraint("Horizontal", 1, 2, 4, 2))
sketch7.addConstraint(Sketcher.Constraint("Horizontal", 3, 2, 6, 2))
sketch7.addConstraint(Sketcher.Constraint("Equal", 3, 5))
sketch7.addConstraint(Sketcher.Constraint("DistanceX", 1, 1, 1, 2, Q("5 mm")))
sketch7.addConstraint(Sketcher.Constraint("DistanceY", 0, 2, 0, 1, Q("6.9 mm")))
sketch7.addConstraint(Sketcher.Constraint("DistanceX", -1, 1, 0, 2, Q("80 mm")))
sketch7.addConstraint(Sketcher.Constraint("DistanceY", -1, 1, 0, 2, Q("16.55 mm")))
pad2 = body.newObject("PartDesign::Pad", "Pad001")
pad2.Profile = sketch7
pad2.Length = 5
pad2.Reversed = True

sketch8 = body.newObject("Sketcher::SketchObject", "Sketch007")
sketch8.AttachmentSupport = (doc.getObject("XY_Plane"), [""])
sketch8.MapMode = "FlatFace"
sketch8.AttachmentOffset = App.Placement(Vector(0, 0, 5), App.Rotation())
sketch8.addGeometry(Part.Circle(Vector(80, 24.4, 0), Vector(0, 0, 1), 1), False)
sketch8.addGeometry(Part.Circle(Vector(80, 15.6, 0), Vector(0, 0, 1), 1), False)
sketch8.addGeometry(Part.Circle(Vector(0, 15.6, 0), Vector(0, 0, 1), 1), False)
sketch8.addGeometry(Part.Circle(Vector(0, 24.4, 0), Vector(0, 0, 1), 1), False)
sketch8.addConstraint(Sketcher.Constraint("Equal", 0, 1))
sketch8.addConstraint(Sketcher.Constraint("Equal", 1, 2))
sketch8.addConstraint(Sketcher.Constraint("Equal", 2, 3))
sketch8.addConstraint(Sketcher.Constraint("PointOnObject", 2, 3, -2))
sketch8.addConstraint(Sketcher.Constraint("PointOnObject", 3, 3, -2))
sketch8.addConstraint(Sketcher.Constraint("Horizontal", 1, 3, 2, 3))
sketch8.addConstraint(Sketcher.Constraint("Horizontal", 0, 3, 3, 3))
sketch8.addConstraint(Sketcher.Constraint("Vertical", 0, 3, 1, 3))
sketch8.addConstraint(Sketcher.Constraint("Diameter", 0, Q("2 mm")))
sketch8.addConstraint(Sketcher.Constraint("DistanceX", -1, 1, 0, 3, Q("80 mm")))
sketch8.addConstraint(Sketcher.Constraint("DistanceY", 1, 3, 0, 3, Q("8.9 mm")))
sketch8.addConstraint(Sketcher.Constraint("DistanceY", -1, 1, 0, 3, Q("24.45 mm")))
pocket6 = body.newObject("PartDesign::Pocket", "Pocket005")
pocket6.Profile = sketch8
pocket6.Length = 5
doc.recompute()

fillet = body.newObject("PartDesign::Fillet", "Fillet")
fillet.Base = (pocket6, edges_at(pocket6, [
    (85, 23.45, 2.5),
    (85, 16.55, 2.5),
    (-5, 16.55, 2.5),
    (-5, 23.45, 2.5),
]))
fillet.Radius = 1

sketch9 = body.newObject("Sketcher::SketchObject", "Sketch008")
sketch9.AttachmentSupport = (doc.getObject("XY_Plane"), [""])
sketch9.MapMode = "FlatFace"
sketch9.AttachmentOffset = App.Placement(Vector(0, 0, 5), App.Rotation())
add_polygon(sketch9, [(60, 0), (60, -5), (80, -5), (80, 0)])
add_polygon(sketch9, [(0, 0), (0, -5), (20, -5), (20, 0)])
sketch9.addConstraint(Sketcher.Constraint("Vertical", 0))
sketch9.addConstraint(Sketcher.Constraint("Horizontal", 1))
sketch9.addConstraint(Sketcher.Constraint("Vertical", 2))
sketch9.addConstraint(Sketcher.Constraint("Horizontal", 3))
sketch9.addConstraint(Sketcher.Constraint("Vertical", 4))
sketch9.addConstraint(Sketcher.Constraint("Horizontal", 5))
sketch9.addConstraint(Sketcher.Constraint("Vertical", 6))
sketch9.addConstraint(Sketcher.Constraint("Horizontal", 7))
sketch9.addConstraint(Sketcher.Constraint("Coincident", 7, 2, -1, 1))
sketch9.addConstraint(Sketcher.Constraint("PointOnObject", 2, 2, -1))
sketch9.addConstraint(Sketcher.Constraint("Horizontal", 1, 2, 4, 2))
sketch9.addConstraint(Sketcher.Constraint("Equal", 3, 5))
sketch9.addConstraint(Sketcher.Constraint("DistanceX", 1, 1, 1, 2, Q("20 mm")))
sketch9.addConstraint(Sketcher.Constraint("DistanceY", 0, 2, 0, 1, Q("5 mm")))
sketch9.addConstraint(Sketcher.Constraint("DistanceX", -1, 1, 0, 2, Q("60 mm")))
pad3 = body.newObject("PartDesign::Pad", "Pad002")
pad3.Profile = sketch9
pad3.Length = 5
pad3.Reversed = True
doc.recompute()

fillet2 = body.newObject("PartDesign::Fillet", "Fillet001")
fillet2.Base = (pad3, edges_at(pad3, [
    (80, -5, 2.5),
    (60, -5, 2.5),
    (0, -5, 2.5),
    (20, -5, 2.5),
]))
fillet2.Radius = 1

doc.recompute()
